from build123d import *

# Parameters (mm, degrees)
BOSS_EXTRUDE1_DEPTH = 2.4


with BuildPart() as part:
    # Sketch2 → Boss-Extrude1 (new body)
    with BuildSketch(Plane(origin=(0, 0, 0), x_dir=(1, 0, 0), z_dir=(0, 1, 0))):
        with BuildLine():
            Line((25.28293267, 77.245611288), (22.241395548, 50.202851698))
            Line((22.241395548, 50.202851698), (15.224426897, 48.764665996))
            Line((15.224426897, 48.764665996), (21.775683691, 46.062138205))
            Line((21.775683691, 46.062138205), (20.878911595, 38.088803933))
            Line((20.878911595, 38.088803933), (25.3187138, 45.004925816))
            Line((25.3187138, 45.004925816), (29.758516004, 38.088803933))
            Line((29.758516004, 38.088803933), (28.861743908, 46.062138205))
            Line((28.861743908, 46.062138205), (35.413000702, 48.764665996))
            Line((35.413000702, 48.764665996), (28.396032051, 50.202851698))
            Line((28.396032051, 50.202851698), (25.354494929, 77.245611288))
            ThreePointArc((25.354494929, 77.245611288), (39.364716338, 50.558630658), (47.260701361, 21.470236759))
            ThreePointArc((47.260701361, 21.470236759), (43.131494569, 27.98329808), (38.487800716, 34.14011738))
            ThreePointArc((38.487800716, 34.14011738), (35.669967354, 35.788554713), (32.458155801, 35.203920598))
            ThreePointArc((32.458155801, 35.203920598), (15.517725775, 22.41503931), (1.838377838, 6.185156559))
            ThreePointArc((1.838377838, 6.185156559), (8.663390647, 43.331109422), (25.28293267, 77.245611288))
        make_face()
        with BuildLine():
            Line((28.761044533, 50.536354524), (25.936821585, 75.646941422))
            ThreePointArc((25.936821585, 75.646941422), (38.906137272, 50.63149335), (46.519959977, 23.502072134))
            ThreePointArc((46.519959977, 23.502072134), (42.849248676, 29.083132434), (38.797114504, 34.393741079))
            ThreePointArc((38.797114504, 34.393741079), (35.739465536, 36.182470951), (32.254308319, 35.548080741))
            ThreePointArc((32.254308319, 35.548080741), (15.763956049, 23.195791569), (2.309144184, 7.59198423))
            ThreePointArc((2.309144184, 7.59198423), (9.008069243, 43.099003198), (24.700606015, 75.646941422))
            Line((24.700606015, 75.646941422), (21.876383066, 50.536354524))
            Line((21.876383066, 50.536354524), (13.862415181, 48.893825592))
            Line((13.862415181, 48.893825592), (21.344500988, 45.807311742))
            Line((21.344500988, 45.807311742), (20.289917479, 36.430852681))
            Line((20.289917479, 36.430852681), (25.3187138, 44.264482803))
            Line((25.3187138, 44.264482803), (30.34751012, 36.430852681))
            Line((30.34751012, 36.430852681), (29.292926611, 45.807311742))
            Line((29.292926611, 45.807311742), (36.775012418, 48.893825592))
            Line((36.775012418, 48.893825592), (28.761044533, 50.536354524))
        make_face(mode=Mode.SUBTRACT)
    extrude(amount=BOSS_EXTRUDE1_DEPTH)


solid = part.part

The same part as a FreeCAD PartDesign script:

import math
import FreeCAD as App
import Part
import Sketcher
Q = App.Units.Quantity

doc = App.newDocument("Part")
body = doc.addObject("PartDesign::Body", "Body")

# Sketch on XZ plane
sketch1 = body.newObject("Sketcher::SketchObject", "Sketch")
sketch1.AttachmentSupport = (doc.getObject("XZ_Plane"), [""])
sketch1.MapMode = "FlatFace"
sketch1.addGeometry(Part.LineSegment(App.Vector(22.241396, -50.202852, 0), App.Vector(25.282933, -77.245611, 0)), False)
sketch1.addGeometry(Part.ArcOfCircle(Part.Circle(App.Vector(140, 0, 0), App.Vector(0, 0, 1), 138.3), math.radians(-177.43672), math.radians(-146.045346)), False)
sketch1.addGeometry(Part.ArcOfCircle(Part.Circle(App.Vector(80.88892, 46.562793, 0), App.Vector(0, 0, 1), 95.033333), math.radians(-146.28606), math.radians(-120.638435)), False)
sketch1.addGeometry(Part.ArcOfCircle(Part.Circle(App.Vector(34.853364, -31.160039, 0), App.Vector(0, 0, 1), 4.7), math.radians(-120.638435), math.radians(-39.350246)), False)
sketch1.addGeometry(Part.ArcOfCircle(Part.Circle(App.Vector(-35, 26.116646, 0), App.Vector(0, 0, 1), 95.033333), math.radians(-39.350246), math.radians(-30.048895)), False)
sketch1.addGeometry(Part.ArcOfCircle(Part.Circle(App.Vector(-89.362572, 0, 0), App.Vector(0, 0, 1), 138.3), math.radians(-33.954654), math.radians(-8.930944)), False)
sketch1.addGeometry(Part.LineSegment(App.Vector(25.354495, -77.245611, 0), App.Vector(28.396032, -50.202852, 0)), False)
sketch1.addGeometry(Part.LineSegment(App.Vector(28.396032, -50.202852, 0), App.Vector(35.413001, -48.764666, 0)), False)
sketch1.addGeometry(Part.LineSegment(App.Vector(35.413001, -48.764666, 0), App.Vector(28.861744, -46.062138, 0)), False)
sketch1.addGeometry(Part.LineSegment(App.Vector(28.861744, -46.062138, 0), App.Vector(29.758516, -38.088804, 0)), False)
sketch1.addGeometry(Part.LineSegment(App.Vector(29.758516, -38.088804, 0), App.Vector(25.318714, -45.004926, 0)), False)
sketch1.addGeometry(Part.LineSegment(App.Vector(25.318714, -45.004926, 0), App.Vector(20.878912, -38.088804, 0)), False)
sketch1.addGeometry(Part.LineSegment(App.Vector(20.878912, -38.088804, 0), App.Vector(21.775684, -46.062138, 0)), False)
sketch1.addGeometry(Part.LineSegment(App.Vector(21.775684, -46.062138, 0), App.Vector(15.224427, -48.764666, 0)), False)
sketch1.addGeometry(Part.LineSegment(App.Vector(15.224427, -48.764666, 0), App.Vector(22.241396, -50.202852, 0)), False)
sketch1.addGeometry(Part.LineSegment(App.Vector(28.761045, -50.536355, 0), App.Vector(25.936822, -75.646941, 0)), False)
sketch1.addGeometry(Part.ArcOfCircle(Part.Circle(App.Vector(-89.362572, 0, 0), App.Vector(0, 0, 1), 137.9), math.radians(-33.268536), math.radians(-9.812726)), False)
sketch1.addGeometry(Part.ArcOfCircle(Part.Circle(App.Vector(-35, 26.116647, 0), App.Vector(0, 0, 1), 95.433333), math.radians(-39.350246), math.radians(-31.327602)), False)
sketch1.addGeometry(Part.ArcOfCircle(Part.Circle(App.Vector(34.853364, -31.160039, 0), App.Vector(0, 0, 1), 5.1), math.radians(-120.638435), math.radians(-39.350246)), False)
sketch1.addGeometry(Part.ArcOfCircle(Part.Circle(App.Vector(80.88892, 46.562793, 0), App.Vector(0, 0, 1), 95.433333), math.radians(-145.426577), math.radians(-120.638435)), False)
sketch1.addGeometry(Part.ArcOfCircle(Part.Circle(App.Vector(140, 0, 0), App.Vector(0, 0, 1), 137.9), math.radians(-176.844027), math.radians(-146.731464)), False)
sketch1.addGeometry(Part.LineSegment(App.Vector(24.700606, -75.646941, 0), App.Vector(21.876383, -50.536355, 0)), False)
sketch1.addGeometry(Part.LineSegment(App.Vector(21.876383, -50.536355, 0), App.Vector(13.862415, -48.893826, 0)), False)
sketch1.addGeometry(Part.LineSegment(App.Vector(13.862415, -48.893826, 0), App.Vector(21.344501, -45.807312, 0)), False)
sketch1.addGeometry(Part.LineSegment(App.Vector(21.344501, -45.807312, 0), App.Vector(20.289917, -36.430853, 0)), False)
sketch1.addGeometry(Part.LineSegment(App.Vector(20.289917, -36.430853, 0), App.Vector(25.318714, -44.264483, 0)), False)
sketch1.addGeometry(Part.LineSegment(App.Vector(25.318714, -44.264483, 0), App.Vector(30.34751, -36.430853, 0)), False)
sketch1.addGeometry(Part.LineSegment(App.Vector(30.34751, -36.430853, 0), App.Vector(29.292927, -45.807312, 0)), False)
sketch1.addGeometry(Part.LineSegment(App.Vector(29.292927, -45.807312, 0), App.Vector(36.775012, -48.893826, 0)), False)
sketch1.addGeometry(Part.LineSegment(App.Vector(36.775012, -48.893826, 0), App.Vector(28.761045, -50.536355, 0)), False)
sketch1.addConstraint(Sketcher.Constraint("Coincident", 0, 2, 1, 2))
sketch1.addConstraint(Sketcher.Constraint("Coincident", 1, 1, 2, 1))
sketch1.addConstraint(Sketcher.Constraint("Tangent", 2, 2, 3, 1))
sketch1.addConstraint(Sketcher.Constraint("Tangent", 3, 2, 4, 1))
sketch1.addConstraint(Sketcher.Constraint("Coincident", 4, 2, 5, 2))
sketch1.addConstraint(Sketcher.Constraint("Coincident", 5, 1, 6, 1))
sketch1.addConstraint(Sketcher.Constraint("Coincident", 6, 2, 7, 1))
sketch1.addConstraint(Sketcher.Constraint("Coincident", 7, 2, 8, 1))
sketch1.addConstraint(Sketcher.Constraint("Coincident", 8, 2, 9, 1))
sketch1.addConstraint(Sketcher.Constraint("Coincident", 9, 2, 10, 1))
sketch1.addConstraint(Sketcher.Constraint("Coincident", 10, 2, 11, 1))
sketch1.addConstraint(Sketcher.Constraint("Coincident", 11, 2, 12, 1))
sketch1.addConstraint(Sketcher.Constraint("Coincident", 12, 2, 13, 1))
sketch1.addConstraint(Sketcher.Constraint("Coincident", 13, 2, 14, 1))
sketch1.addConstraint(Sketcher.Constraint("Coincident", 14, 2, 0, 1))
sketch1.addConstraint(Sketcher.Constraint("Coincident", 15, 2, 16, 1))
sketch1.addConstraint(Sketcher.Constraint("Coincident", 16, 2, 17, 2))
sketch1.addConstraint(Sketcher.Constraint("Tangent", 17, 1, 18, 2))
sketch1.addConstraint(Sketcher.Constraint("Tangent", 18, 1, 19, 2))
sketch1.addConstraint(Sketcher.Constraint("Coincident", 19, 1, 20, 1))
sketch1.addConstraint(Sketcher.Constraint("Coincident", 20, 2, 21, 1))
sketch1.addConstraint(Sketcher.Constraint("Coincident", 21, 2, 22, 1))
sketch1.addConstraint(Sketcher.Constraint("Coincident", 22, 2, 23, 1))
sketch1.addConstraint(Sketcher.Constraint("Coincident", 23, 2, 24, 1))
sketch1.addConstraint(Sketcher.Constraint("Coincident", 24, 2, 25, 1))
sketch1.addConstraint(Sketcher.Constraint("Coincident", 25, 2, 26, 1))
sketch1.addConstraint(Sketcher.Constraint("Coincident", 26, 2, 27, 1))
sketch1.addConstraint(Sketcher.Constraint("Coincident", 27, 2, 28, 1))
sketch1.addConstraint(Sketcher.Constraint("Coincident", 28, 2, 29, 1))
sketch1.addConstraint(Sketcher.Constraint("Coincident", 29, 2, 15, 1))
sketch1.addConstraint(Sketcher.Constraint("Coincident", 16, 3, 5, 3))
sketch1.addConstraint(Sketcher.Constraint("Coincident", 17, 3, 4, 3))
sketch1.addConstraint(Sketcher.Constraint("Coincident", 18, 3, 3, 3))
sketch1.addConstraint(Sketcher.Constraint("Coincident", 19, 3, 2, 3))
sketch1.addConstraint(Sketcher.Constraint("Coincident", 20, 3, 1, 3))
sketch1.addConstraint(Sketcher.Constraint("Equal", 2, 4))
sketch1.addConstraint(Sketcher.Constraint("Equal", 1, 5))
sketch1.addConstraint(Sketcher.Constraint("Equal", 16, 20))
sketch1.addConstraint(Sketcher.Constraint("PointOnObject", 1, 3, -1))
sketch1.addConstraint(Sketcher.Constraint("PointOnObject", 5, 3, -1))
sketch1.addConstraint(Sketcher.Constraint("Parallel", 6, 9))
sketch1.addConstraint(Sketcher.Constraint("Parallel", 0, 12))
sketch1.addConstraint(Sketcher.Constraint("Parallel", 9, 15))
sketch1.addConstraint(Sketcher.Constraint("Parallel", 12, 21))
sketch1.addConstraint(Sketcher.Constraint("Parallel", 14, 22))
sketch1.addConstraint(Sketcher.Constraint("Parallel", 13, 23))
sketch1.addConstraint(Sketcher.Constraint("Parallel", 21, 24))
sketch1.addConstraint(Sketcher.Constraint("Parallel", 11, 25))
sketch1.addConstraint(Sketcher.Constraint("Parallel", 10, 26))
sketch1.addConstraint(Sketcher.Constraint("Parallel", 15, 27))
sketch1.addConstraint(Sketcher.Constraint("Parallel", 8, 28))
sketch1.addConstraint(Sketcher.Constraint("Parallel", 7, 29))
sketch1.addConstraint(Sketcher.Constraint("Horizontal", 0, 2, 5, 1))
sketch1.addConstraint(Sketcher.Constraint("Horizontal", 9, 2, 11, 2))
sketch1.addConstraint(Sketcher.Constraint("Horizontal", 8, 2, 12, 2))
sketch1.addConstraint(Sketcher.Constraint("Horizontal", 7, 2, 13, 2))
sketch1.addConstraint(Sketcher.Constraint("Horizontal", 6, 2, 14, 2))
sketch1.addConstraint(Sketcher.Constraint("Horizontal", 15, 2, 20, 2))
sketch1.addConstraint(Sketcher.Constraint("Horizontal", 24, 2, 26, 2))
sketch1.addConstraint(Sketcher.Constraint("Horizontal", 23, 2, 27, 2))
sketch1.addConstraint(Sketcher.Constraint("Horizontal", 22, 2, 28, 2))
sketch1.addConstraint(Sketcher.Constraint("Horizontal", 21, 2, 29, 2))
sketch1.addConstraint(Sketcher.Constraint("Vertical", 10, 2, 25, 2))
sketch1.addConstraint(Sketcher.Constraint("Equal", 0, 6))
sketch1.addConstraint(Sketcher.Constraint("Equal", 10, 11))
sketch1.addConstraint(Sketcher.Constraint("Equal", 8, 13))
sketch1.addConstraint(Sketcher.Constraint("Radius", 1, Q("138.3 mm")))
sketch1.addConstraint(Sketcher.Constraint("Radius", 3, Q("4.7 mm")))
sketch1.addConstraint(Sketcher.Constraint("Radius", 16, Q("137.9 mm")))
sketch1.addConstraint(Sketcher.Constraint("Radius", 18, Q("5.1 mm")))
sketch1.addConstraint(Sketcher.Constraint("DistanceX", -1, 1, 1, 3, Q("140 mm")))
sketch1.addConstraint(Sketcher.Constraint("DistanceX", 4, 3, -1, 1, Q("35 mm")))
sketch1.addConstraint(Sketcher.Constraint("DistanceX", -1, 1, 7, 2, Q("35.413001 mm")))
sketch1.addConstraint(Sketcher.Constraint("Radius", 2, Q("95.033333 mm")))
sketch1.addConstraint(Sketcher.Constraint("DistanceX", -1, 1, 3, 2, Q("38.487801 mm")))
sketch1.addConstraint(Sketcher.Constraint("DistanceX", -1, 1, 4, 2, Q("47.260701 mm")))
sketch1.addConstraint(Sketcher.Constraint("DistanceX", -1, 1, 23, 2, Q("21.344501 mm")))
sketch1.addConstraint(Sketcher.Constraint("DistanceY", 8, 2, 3, 3, Q("14.902099 mm")))
sketch1.addConstraint(Sketcher.Constraint("DistanceX", 9, 2, 17, 1, Q("9.038599 mm")))
sketch1.addConstraint(Sketcher.Constraint("DistanceX", 12, 2, 21, 2, Q("0.100699 mm")))
sketch1.addConstraint(Sketcher.Constraint("DistanceX", 22, 2, 10, 2, Q("11.456299 mm")))
sketch1.addConstraint(Sketcher.Constraint("DistanceY", 22, 2, 10, 2, Q("3.8889 mm")))
sketch1.addConstraint(Sketcher.Constraint("DistanceX", 24, 2, 9, 2, Q("9.468599 mm")))
sketch1.addConstraint(Sketcher.Constraint("DistanceX", 26, 2, 18, 1, Q("1.906798 mm")))
sketch1.addConstraint(Sketcher.Constraint("Distance", 10, Q("8.218551 mm")))
sketch1.addConstraint(Sketcher.Constraint("Distance", 15, Q("25.26891 mm")))
sketch1.addConstraint(Sketcher.Constraint("Distance", 22, Q("8.180561 mm")))
sketch1.addConstraint(Sketcher.Constraint("DistanceX", -1, 1, 2, 3, Q("80.88892 mm")))
sketch1.addConstraint(Sketcher.Constraint("DistanceY", 0, 2, -1, 1, Q("77.245611 mm")))
sketch1.addConstraint(Sketcher.Constraint("DistanceY", 6, 2, -1, 1, Q("50.202852 mm")))
sketch1.addConstraint(Sketcher.Constraint("DistanceX", -1, 1, 15, 2, Q("25.936822 mm")))
pad1 = body.newObject("PartDesign::Pad", "Pad")
pad1.Profile = sketch1
pad1.Length = 2.4
pad1.Reversed = True

doc.recompute()
